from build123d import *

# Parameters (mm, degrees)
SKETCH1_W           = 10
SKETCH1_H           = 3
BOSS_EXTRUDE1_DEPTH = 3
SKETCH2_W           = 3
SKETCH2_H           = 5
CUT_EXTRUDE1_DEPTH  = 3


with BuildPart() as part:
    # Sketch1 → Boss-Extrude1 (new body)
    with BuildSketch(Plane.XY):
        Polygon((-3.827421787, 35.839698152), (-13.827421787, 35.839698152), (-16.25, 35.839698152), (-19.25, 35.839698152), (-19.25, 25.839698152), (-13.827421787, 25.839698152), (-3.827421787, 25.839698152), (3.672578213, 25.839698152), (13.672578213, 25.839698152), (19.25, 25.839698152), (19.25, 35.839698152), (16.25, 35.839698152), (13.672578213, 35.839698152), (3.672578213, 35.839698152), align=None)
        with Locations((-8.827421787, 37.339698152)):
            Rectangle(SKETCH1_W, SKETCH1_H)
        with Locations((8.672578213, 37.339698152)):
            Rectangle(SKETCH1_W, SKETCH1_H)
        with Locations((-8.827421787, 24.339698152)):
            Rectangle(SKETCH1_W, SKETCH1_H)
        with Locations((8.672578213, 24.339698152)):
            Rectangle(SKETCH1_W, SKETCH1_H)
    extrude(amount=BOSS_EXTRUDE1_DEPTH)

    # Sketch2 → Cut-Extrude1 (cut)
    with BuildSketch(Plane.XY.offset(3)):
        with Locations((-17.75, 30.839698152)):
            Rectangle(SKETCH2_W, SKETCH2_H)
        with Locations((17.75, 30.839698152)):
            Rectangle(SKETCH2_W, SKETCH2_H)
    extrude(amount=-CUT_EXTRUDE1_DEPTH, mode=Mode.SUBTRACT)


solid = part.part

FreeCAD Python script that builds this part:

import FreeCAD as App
import Part
import Sketcher

V = App.Vector
Q = App.Units.Quantity


def add_polygon(sketch, points):
    """Adds a closed chain of lines whose ends are joined by coincident constraints."""
    first, n = sketch.GeometryCount, len(points)
    for a, b in zip(points, points[1:] + points[:1]):
        sketch.addGeometry(Part.LineSegment(App.Vector(*a, 0), App.Vector(*b, 0)), False)
    for i in range(n):
        sketch.addConstraint(Sketcher.Constraint("Coincident", first + i, 2, first + (i + 1) % n, 1))

doc = App.newDocument("Part")
params = doc.addObject("Spreadsheet::Sheet", "Params")
for row, (alias, value) in enumerate([
    ("sketch1_width", "10 mm"),
    ("sketch1_height", "3 mm"),
    ("sketch1_width2", "7.5 mm"),
    ("pad1_length", "3 mm"),
    ("sketch2_width", "3 mm"),
    ("sketch2_height", "5 mm"),
    ("pocket1_length", "3 mm"),
], start=1):
    params.set(f"A{row}", alias)
    params.set(f"B{row}", "=" + value)
    params.setAlias(f"B{row}", alias)

body = doc.addObject("PartDesign::Body", "Body")

# Sketch on XY plane
sketch1 = body.newObject("Sketcher::SketchObject", "Sketch")
sketch1.AttachmentSupport = (doc.getObject("XY_Plane"), [""])
sketch1.MapMode = "FlatFace"
add_polygon(sketch1, [(-19.2, 35.8), (-19.2, 25.8), (-13.8, 25.8), (-13.8, 22.8), (-3.8, 22.8), (-3.8, 25.8), (3.7, 25.8), (3.7, 22.8), (13.7, 22.8), (13.7, 25.8), (19.2, 25.8), (19.2, 35.8), (13.7, 35.8), (13.7, 38.8), (3.7, 38.8), (3.7, 35.8), (-3.8, 35.8), (-3.8, 38.8), (-13.8, 38.8), (-13.8, 35.8)])  # lines 0-19
sketch1.addConstraint([
    Sketcher.Constraint("Vertical", 0),
    Sketcher.Constraint("Horizontal", 1),
    Sketcher.Constraint("Vertical", 2),
    Sketcher.Constraint("Horizontal", 3),
    Sketcher.Constraint("Vertical", 4),
    Sketcher.Constraint("Horizontal", 5),
    Sketcher.Constraint("Vertical", 6),
    Sketcher.Constraint("Horizontal", 7),
    Sketcher.Constraint("Vertical", 8),
    Sketcher.Constraint("Horizontal", 9),
    Sketcher.Constraint("Vertical", 10),
    Sketcher.Constraint("Horizontal", 11),
    Sketcher.Constraint("Vertical", 12),
    Sketcher.Constraint("Horizontal", 13),
    Sketcher.Constraint("Vertical", 14),
    Sketcher.Constraint("Horizontal", 15),
    Sketcher.Constraint("Vertical", 16),
    Sketcher.Constraint("Horizontal", 17),
    Sketcher.Constraint("Vertical", 18),
    Sketcher.Constraint("Horizontal", 19),
    Sketcher.Constraint("Symmetric", 0, 2, 9, 2, -2),
    Sketcher.Constraint("Horizontal", 1, 2, 4, 2),
    Sketcher.Constraint("Horizontal", 3, 2, 6, 2),
    Sketcher.Constraint("Horizontal", 11, 2, 14, 2),
    Sketcher.Constraint("Horizontal", 13, 2, 16, 2),
    Sketcher.Constraint("Horizontal", 15, 2, 18, 2),
    Sketcher.Constraint("Vertical", 8, 2, 11, 2),
    Sketcher.Constraint("Vertical", 6, 2, 13, 2),
    Sketcher.Constraint("Vertical", 4, 2, 15, 2),
    Sketcher.Constraint("Vertical", 2, 2, 17, 2),
    Sketcher.Constraint("Equal", 3, 7),
    Sketcher.Constraint("Equal", 17, 0),
    Sketcher.Constraint("Equal", 8, 12),
    Sketcher.Constraint("DistanceX", 3, 1, 3, 2, Q("10 mm")),
    Sketcher.Constraint("DistanceY", 2, 2, 2, 1, Q("3 mm")),
    Sketcher.Constraint("DistanceX", 5, 1, 5, 2, Q("7.5 mm")),
    Sketcher.Constraint("DistanceX", 0, 2, -1, 1, Q("19.25 mm")),
    Sketcher.Constraint("DistanceX", 1, 1, 1, 2, Q("5.422578 mm")),
    Sketcher.Constraint("DistanceY", -1, 1, 0, 2, Q("25.839698 mm")),
])
sketch1.setExpression("Constraints[53]", "Params.sketch1_width")
sketch1.setExpression("Constraints[54]", "Params.sketch1_height")
sketch1.setExpression("Constraints[55]", "Params.sketch1_width2")
pad1 = body.newObject("PartDesign::Pad", "Pad")
pad1.Profile = sketch1
pad1.setExpression("Length", "Params.pad1_length")

# Sketch on XY plane
sketch2 = body.newObject("Sketcher::SketchObject", "Sketch001")
sketch2.AttachmentSupport = (doc.getObject("XY_Plane"), [""])
sketch2.MapMode = "FlatFace"
sketch2.AttachmentOffset = App.Placement(V(0, 0, 3), App.Rotation())
add_polygon(sketch2, [(-19.2, 33.3), (-19.2, 28.3), (-16.2, 28.3), (-16.2, 33.3)])  # lines 0-3
add_polygon(sketch2, [(16.2, 33.3), (16.2, 28.3), (19.2, 28.3), (19.2, 33.3)])  # lines 4-7
sketch2.addConstraint([
    Sketcher.Constraint("Vertical", 0),
    Sketcher.Constraint("Horizontal", 1),
    Sketcher.Constraint("Vertical", 2),
    Sketcher.Constraint("Horizontal", 3),
    Sketcher.Constraint("Vertical", 4),
    Sketcher.Constraint("Horizontal", 5),
    Sketcher.Constraint("Vertical", 6),
    Sketcher.Constraint("Horizontal", 7),
    Sketcher.Constraint("Symmetric", 1, 2, 4, 2, -2),
    Sketcher.Constraint("Symmetric", 3, 2, 6, 2, -2),
    Sketcher.Constraint("DistanceX", 1, 1, 1, 2, Q("3 mm")),
    Sketcher.Constraint("DistanceY", 0, 2, 0, 1, Q("5 mm")),
    Sketcher.Constraint("DistanceX", 1, 2, 4, 2, Q("32.5 mm")),
    Sketcher.Constraint("DistanceY", -1, 1, 0, 2, Q("28.339698 mm")),
])
sketch2.setExpression("Constraints[18]", "Params.sketch2_width")
sketch2.setExpression("Constraints[19]", "Params.sketch2_height")
pocket1 = body.newObject("PartDesign::Pocket", "Pocket")
pocket1.Profile = sketch2
pocket1.setExpression("Length", "Params.pocket1_length")

doc.recompute()
